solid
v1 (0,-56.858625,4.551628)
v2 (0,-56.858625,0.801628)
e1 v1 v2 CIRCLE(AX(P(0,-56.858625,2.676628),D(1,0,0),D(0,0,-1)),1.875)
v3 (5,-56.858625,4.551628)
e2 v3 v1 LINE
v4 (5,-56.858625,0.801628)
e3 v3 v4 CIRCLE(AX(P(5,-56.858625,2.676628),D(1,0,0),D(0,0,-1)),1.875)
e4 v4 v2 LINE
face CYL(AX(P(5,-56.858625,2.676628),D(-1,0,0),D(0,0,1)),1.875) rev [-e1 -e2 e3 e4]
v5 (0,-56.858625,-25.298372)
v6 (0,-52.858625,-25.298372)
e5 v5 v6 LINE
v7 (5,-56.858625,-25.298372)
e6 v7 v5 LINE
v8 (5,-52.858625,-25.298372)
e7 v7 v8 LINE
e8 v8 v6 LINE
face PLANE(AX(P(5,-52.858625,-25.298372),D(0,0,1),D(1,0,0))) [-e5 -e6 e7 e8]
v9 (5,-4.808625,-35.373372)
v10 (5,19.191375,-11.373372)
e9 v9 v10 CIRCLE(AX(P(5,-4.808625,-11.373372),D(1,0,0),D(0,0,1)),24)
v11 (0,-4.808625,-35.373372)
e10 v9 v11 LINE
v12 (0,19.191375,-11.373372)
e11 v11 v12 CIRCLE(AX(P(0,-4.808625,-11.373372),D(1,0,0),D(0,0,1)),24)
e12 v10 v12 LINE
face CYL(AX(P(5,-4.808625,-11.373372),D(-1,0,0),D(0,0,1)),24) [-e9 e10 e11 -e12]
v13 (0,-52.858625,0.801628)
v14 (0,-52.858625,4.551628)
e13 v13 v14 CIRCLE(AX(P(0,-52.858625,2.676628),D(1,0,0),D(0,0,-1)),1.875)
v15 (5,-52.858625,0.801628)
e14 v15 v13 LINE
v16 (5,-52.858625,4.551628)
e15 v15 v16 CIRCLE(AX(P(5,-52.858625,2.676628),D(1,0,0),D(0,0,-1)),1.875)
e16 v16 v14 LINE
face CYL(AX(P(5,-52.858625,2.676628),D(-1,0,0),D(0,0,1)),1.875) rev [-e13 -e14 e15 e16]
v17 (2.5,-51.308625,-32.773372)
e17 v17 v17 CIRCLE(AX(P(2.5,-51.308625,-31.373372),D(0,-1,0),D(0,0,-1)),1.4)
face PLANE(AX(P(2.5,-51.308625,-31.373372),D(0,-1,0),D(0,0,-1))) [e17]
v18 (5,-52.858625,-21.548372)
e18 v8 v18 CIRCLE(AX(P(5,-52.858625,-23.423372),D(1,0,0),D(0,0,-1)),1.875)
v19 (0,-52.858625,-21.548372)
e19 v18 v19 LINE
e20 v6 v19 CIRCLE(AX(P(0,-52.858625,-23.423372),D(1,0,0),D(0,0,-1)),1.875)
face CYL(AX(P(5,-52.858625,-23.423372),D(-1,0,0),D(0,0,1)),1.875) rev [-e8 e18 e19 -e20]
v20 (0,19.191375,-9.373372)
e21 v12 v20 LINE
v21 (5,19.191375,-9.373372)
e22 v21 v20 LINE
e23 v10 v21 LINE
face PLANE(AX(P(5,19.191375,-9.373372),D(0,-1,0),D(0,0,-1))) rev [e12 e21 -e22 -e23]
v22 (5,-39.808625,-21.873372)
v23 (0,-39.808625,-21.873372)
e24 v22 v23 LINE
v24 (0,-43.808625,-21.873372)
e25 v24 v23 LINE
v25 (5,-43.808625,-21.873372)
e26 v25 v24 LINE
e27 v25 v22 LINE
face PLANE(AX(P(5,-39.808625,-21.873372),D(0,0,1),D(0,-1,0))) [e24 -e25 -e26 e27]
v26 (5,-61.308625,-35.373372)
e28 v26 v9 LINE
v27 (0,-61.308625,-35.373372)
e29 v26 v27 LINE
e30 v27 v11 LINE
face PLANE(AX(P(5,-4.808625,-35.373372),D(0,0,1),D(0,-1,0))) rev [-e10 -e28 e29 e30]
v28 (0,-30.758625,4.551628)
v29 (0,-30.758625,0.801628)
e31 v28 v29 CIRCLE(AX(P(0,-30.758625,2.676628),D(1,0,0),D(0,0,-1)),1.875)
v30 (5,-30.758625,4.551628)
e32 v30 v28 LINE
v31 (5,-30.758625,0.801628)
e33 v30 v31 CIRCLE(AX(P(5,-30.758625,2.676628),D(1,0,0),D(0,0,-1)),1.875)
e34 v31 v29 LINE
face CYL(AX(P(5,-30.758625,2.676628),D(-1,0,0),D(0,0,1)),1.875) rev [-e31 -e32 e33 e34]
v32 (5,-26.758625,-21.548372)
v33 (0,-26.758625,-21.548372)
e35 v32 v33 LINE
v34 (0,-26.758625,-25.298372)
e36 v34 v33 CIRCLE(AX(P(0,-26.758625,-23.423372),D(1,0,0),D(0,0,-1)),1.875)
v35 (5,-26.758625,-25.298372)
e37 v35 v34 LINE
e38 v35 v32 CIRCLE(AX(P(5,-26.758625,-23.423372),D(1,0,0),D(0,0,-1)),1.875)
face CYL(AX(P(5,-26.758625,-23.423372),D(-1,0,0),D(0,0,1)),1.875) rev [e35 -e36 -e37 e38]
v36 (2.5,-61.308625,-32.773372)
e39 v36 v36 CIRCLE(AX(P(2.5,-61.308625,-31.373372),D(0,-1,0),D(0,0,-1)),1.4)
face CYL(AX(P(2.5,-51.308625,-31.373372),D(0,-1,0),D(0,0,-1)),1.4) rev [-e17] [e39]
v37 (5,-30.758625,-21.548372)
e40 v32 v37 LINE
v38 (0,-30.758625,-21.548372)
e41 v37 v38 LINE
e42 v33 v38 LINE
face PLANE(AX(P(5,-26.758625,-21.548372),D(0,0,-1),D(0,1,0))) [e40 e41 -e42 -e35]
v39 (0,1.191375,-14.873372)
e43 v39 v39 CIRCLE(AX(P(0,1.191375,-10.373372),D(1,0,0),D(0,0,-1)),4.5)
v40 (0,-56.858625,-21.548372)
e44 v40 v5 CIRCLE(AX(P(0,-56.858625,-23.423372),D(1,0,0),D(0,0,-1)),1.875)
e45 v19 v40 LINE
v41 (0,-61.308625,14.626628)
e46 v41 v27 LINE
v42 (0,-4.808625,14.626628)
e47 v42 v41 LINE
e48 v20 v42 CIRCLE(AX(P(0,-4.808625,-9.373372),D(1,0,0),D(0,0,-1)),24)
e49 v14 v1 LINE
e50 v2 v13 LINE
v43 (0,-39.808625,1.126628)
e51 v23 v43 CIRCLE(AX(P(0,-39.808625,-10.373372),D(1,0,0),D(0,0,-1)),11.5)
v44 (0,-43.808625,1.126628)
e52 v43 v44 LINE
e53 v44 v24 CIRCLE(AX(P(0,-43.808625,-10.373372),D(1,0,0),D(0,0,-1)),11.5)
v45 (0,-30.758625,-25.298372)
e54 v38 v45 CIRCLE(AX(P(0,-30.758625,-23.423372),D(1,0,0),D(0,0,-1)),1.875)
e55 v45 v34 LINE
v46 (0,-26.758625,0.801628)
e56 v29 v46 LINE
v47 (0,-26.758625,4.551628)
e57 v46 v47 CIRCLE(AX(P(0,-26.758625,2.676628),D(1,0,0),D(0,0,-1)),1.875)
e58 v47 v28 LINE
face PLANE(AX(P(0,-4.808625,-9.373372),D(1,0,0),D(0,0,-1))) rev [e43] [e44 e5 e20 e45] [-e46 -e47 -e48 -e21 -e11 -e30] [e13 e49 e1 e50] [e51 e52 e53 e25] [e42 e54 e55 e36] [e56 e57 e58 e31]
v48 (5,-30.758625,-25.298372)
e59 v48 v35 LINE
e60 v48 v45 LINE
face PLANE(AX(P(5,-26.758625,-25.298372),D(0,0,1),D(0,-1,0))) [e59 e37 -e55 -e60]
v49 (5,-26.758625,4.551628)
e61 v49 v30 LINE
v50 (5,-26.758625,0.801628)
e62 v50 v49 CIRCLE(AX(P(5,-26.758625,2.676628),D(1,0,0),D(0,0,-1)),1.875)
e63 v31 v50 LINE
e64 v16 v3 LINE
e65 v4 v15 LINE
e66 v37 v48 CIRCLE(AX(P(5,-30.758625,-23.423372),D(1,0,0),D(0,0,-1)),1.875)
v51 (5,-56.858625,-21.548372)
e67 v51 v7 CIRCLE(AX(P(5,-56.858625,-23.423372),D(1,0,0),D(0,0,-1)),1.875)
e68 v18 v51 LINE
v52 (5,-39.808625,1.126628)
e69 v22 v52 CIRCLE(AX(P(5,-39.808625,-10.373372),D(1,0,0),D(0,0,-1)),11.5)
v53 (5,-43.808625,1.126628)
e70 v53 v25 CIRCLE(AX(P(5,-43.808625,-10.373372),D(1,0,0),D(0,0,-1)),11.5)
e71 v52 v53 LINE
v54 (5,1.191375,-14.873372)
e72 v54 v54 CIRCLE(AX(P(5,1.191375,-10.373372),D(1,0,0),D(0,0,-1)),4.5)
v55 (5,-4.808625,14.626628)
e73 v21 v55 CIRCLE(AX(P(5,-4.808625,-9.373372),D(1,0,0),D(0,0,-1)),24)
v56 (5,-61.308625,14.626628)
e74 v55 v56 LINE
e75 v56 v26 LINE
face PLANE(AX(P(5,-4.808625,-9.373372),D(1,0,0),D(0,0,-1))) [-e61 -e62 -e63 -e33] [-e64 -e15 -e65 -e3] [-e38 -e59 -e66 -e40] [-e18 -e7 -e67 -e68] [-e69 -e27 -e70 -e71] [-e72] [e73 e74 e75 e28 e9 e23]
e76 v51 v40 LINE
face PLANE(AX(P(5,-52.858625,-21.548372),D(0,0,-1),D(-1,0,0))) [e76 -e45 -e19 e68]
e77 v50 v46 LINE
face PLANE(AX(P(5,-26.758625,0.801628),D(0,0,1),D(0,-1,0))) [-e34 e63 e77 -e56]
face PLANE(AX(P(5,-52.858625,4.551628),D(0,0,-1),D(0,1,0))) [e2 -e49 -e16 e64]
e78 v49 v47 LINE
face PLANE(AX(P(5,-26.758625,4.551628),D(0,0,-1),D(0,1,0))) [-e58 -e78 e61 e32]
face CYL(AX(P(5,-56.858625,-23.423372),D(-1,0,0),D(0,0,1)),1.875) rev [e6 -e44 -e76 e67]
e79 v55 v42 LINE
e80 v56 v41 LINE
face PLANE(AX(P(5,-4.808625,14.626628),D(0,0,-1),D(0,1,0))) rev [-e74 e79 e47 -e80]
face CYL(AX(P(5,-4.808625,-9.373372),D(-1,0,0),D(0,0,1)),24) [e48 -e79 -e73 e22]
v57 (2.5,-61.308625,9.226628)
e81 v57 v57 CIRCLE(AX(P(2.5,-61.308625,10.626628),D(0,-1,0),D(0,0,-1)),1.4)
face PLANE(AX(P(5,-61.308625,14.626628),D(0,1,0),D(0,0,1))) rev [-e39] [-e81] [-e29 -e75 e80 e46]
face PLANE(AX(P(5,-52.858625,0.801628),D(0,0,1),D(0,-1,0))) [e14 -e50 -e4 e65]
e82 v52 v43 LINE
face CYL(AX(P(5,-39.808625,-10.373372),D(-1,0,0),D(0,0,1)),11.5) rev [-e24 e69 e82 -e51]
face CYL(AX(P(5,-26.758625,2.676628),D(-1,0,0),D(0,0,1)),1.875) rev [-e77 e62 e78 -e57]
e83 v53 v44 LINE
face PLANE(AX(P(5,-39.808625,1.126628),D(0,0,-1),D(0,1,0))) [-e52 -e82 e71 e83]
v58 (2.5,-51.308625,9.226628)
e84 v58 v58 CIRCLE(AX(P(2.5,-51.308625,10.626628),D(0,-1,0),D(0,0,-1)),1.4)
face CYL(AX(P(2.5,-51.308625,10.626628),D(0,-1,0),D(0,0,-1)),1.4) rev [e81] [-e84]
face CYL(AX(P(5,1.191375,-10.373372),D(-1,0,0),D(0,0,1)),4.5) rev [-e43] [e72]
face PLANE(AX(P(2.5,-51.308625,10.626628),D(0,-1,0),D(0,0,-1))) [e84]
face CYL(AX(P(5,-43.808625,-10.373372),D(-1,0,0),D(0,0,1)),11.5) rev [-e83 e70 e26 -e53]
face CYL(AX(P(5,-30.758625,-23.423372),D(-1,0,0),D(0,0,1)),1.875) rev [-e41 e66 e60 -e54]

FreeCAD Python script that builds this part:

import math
import FreeCAD as App
import Part
import Sketcher
from FreeCAD import Vector
Q = App.Units.Quantity

doc = App.newDocument("Part")
body = doc.addObject("PartDesign::Body", "Body")

sketch1 = body.newObject("Sketcher::SketchObject", "Sketch")
sketch1.AttachmentSupport = (doc.getObject("YZ_Plane"), [""])
sketch1.MapMode = "FlatFace"
sketch1.addGeometry(Part.LineSegment(Vector(19.191375, -11.373372, 0), Vector(19.191375, -9.373372, 0)), False)
sketch1.addGeometry(Part.ArcOfCircle(Part.Circle(Vector(-4.808625, -9.373372, 0), Vector(0, 0, 1), 24), math.radians(0), math.radians(90)), False)
sketch1.addGeometry(Part.LineSegment(Vector(-4.808625, 14.626628, 0), Vector(-61.308625, 14.626628, 0)), False)
sketch1.addGeometry(Part.LineSegment(Vector(-61.308625, 14.626628, 0), Vector(-61.308625, -35.373372, 0)), False)
sketch1.addGeometry(Part.LineSegment(Vector(-61.308625, -35.373372, 0), Vector(-4.808625, -35.373372, 0)), False)
sketch1.addGeometry(Part.ArcOfCircle(Part.Circle(Vector(-4.808625, -11.373372, 0), Vector(0, 0, 1), 24), math.radians(-90), math.radians(0)), False)
sketch1.addGeometry(Part.LineSegment(Vector(-52.858625, -25.298372, 0), Vector(-56.858625, -25.298372, 0)), False)
sketch1.addGeometry(Part.ArcOfCircle(Part.Circle(Vector(-56.858625, -23.423372, 0), Vector(0, 0, 1), 1.875), math.radians(90), math.radians(270)), False)
sketch1.addGeometry(Part.LineSegment(Vector(-56.858625, -21.548372, 0), Vector(-52.858625, -21.548372, 0)), False)
sketch1.addGeometry(Part.ArcOfCircle(Part.Circle(Vector(-52.858625, -23.423372, 0), Vector(0, 0, 1), 1.875), math.radians(-90), math.radians(90)), False)
sketch1.addGeometry(Part.ArcOfCircle(Part.Circle(Vector(-26.758625, -23.423372, 0), Vector(0, 0, 1), 1.875), math.radians(-90), math.radians(90)), False)
sketch1.addGeometry(Part.LineSegment(Vector(-26.758625, -25.298372, 0), Vector(-30.758625, -25.298372, 0)), False)
sketch1.addGeometry(Part.ArcOfCircle(Part.Circle(Vector(-30.758625, -23.423372, 0), Vector(0, 0, 1), 1.875), math.radians(90), math.radians(270)), False)
sketch1.addGeometry(Part.LineSegment(Vector(-30.758625, -21.548372, 0), Vector(-26.758625, -21.548372, 0)), False)
sketch1.addGeometry(Part.ArcOfCircle(Part.Circle(Vector(-52.858625, 2.676628, 0), Vector(0, 0, 1), 1.875), math.radians(-90), math.radians(90)), False)
sketch1.addGeometry(Part.LineSegment(Vector(-52.858625, 0.801628, 0), Vector(-56.858625, 0.801628, 0)), False)
sketch1.addGeometry(Part.ArcOfCircle(Part.Circle(Vector(-56.858625, 2.676628, 0), Vector(0, 0, 1), 1.875), math.radians(90), math.radians(270)), False)
sketch1.addGeometry(Part.LineSegment(Vector(-56.858625, 4.551628, 0), Vector(-52.858625, 4.551628, 0)), False)
sketch1.addGeometry(Part.ArcOfCircle(Part.Circle(Vector(-39.808625, -10.373372, 0), Vector(0, 0, 1), 11.5), math.radians(-90), math.radians(90)), False)
sketch1.addGeometry(Part.LineSegment(Vector(-39.808625, -21.873372, 0), Vector(-43.808625, -21.873372, 0)), False)
sketch1.addGeometry(Part.ArcOfCircle(Part.Circle(Vector(-43.808625, -10.373372, 0), Vector(0, 0, 1), 11.5), math.radians(90), math.radians(270)), False)
sketch1.addGeometry(Part.LineSegment(Vector(-43.808625, 1.126628, 0), Vector(-39.808625, 1.126628, 0)), False)
sketch1.addGeometry(Part.ArcOfCircle(Part.Circle(Vector(-26.758625, 2.676628, 0), Vector(0, 0, 1), 1.875), math.radians(-90), math.radians(90)), False)
sketch1.addGeometry(Part.LineSegment(Vector(-26.758625, 0.801628, 0), Vector(-30.758625, 0.801628, 0)), False)
sketch1.addGeometry(Part.ArcOfCircle(Part.Circle(Vector(-30.758625, 2.676628, 0), Vector(0, 0, 1), 1.875), math.radians(90), math.radians(270)), False)
sketch1.addGeometry(Part.LineSegment(Vector(-30.758625, 4.551628, 0), Vector(-26.758625, 4.551628, 0)), False)
sketch1.addGeometry(Part.Circle(Vector(1.191375, -10.373372, 0), Vector(0, 0, 1), 4.5), False)
sketch1.addConstraint(Sketcher.Constraint("Tangent", 0, 2, 1, 1))
sketch1.addConstraint(Sketcher.Constraint("Tangent", 1, 2, 2, 1))
sketch1.addConstraint(Sketcher.Constraint("Coincident", 2, 2, 3, 1))
sketch1.addConstraint(Sketcher.Constraint("Coincident", 3, 2, 4, 1))
sketch1.addConstraint(Sketcher.Constraint("Tangent", 4, 2, 5, 1))
sketch1.addConstraint(Sketcher.Constraint("Tangent", 5, 2, 0, 1))
sketch1.addConstraint(Sketcher.Constraint("Tangent", 6, 2, 7, 2))
sketch1.addConstraint(Sketcher.Constraint("Tangent", 7, 1, 8, 1))
sketch1.addConstraint(Sketcher.Constraint("Tangent", 8, 2, 9, 2))
sketch1.addConstraint(Sketcher.Constraint("Tangent", 9, 1, 6, 1))
sketch1.addConstraint(Sketcher.Constraint("Tangent", 10, 1, 11, 1))
sketch1.addConstraint(Sketcher.Constraint("Tangent", 11, 2, 12, 2))
sketch1.addConstraint(Sketcher.Constraint("Tangent", 12, 1, 13, 1))
sketch1.addConstraint(Sketcher.Constraint("Tangent", 13, 2, 10, 2))
sketch1.addConstraint(Sketcher.Constraint("Tangent", 14, 1, 15, 1))
sketch1.addConstraint(Sketcher.Constraint("Tangent", 15, 2, 16, 2))
sketch1.addConstraint(Sketcher.Constraint("Tangent", 16, 1, 17, 1))
sketch1.addConstraint(Sketcher.Constraint("Tangent", 17, 2, 14, 2))
sketch1.addConstraint(Sketcher.Constraint("Tangent", 18, 1, 19, 1))
sketch1.addConstraint(Sketcher.Constraint("Tangent", 19, 2, 20, 2))
sketch1.addConstraint(Sketcher.Constraint("Tangent", 20, 1, 21, 1))
sketch1.addConstraint(Sketcher.Constraint("Tangent", 21, 2, 18, 2))
sketch1.addConstraint(Sketcher.Constraint("Tangent", 22, 1, 23, 1))
sketch1.addConstraint(Sketcher.Constraint("Tangent", 23, 2, 24, 2))
sketch1.addConstraint(Sketcher.Constraint("Tangent", 24, 1, 25, 1))
sketch1.addConstraint(Sketcher.Constraint("Tangent", 25, 2, 22, 2))
sketch1.addConstraint(Sketcher.Constraint("Vertical", 0))
sketch1.addConstraint(Sketcher.Constraint("Horizontal", 2))
sketch1.addConstraint(Sketcher.Constraint("Vertical", 3))
sketch1.addConstraint(Sketcher.Constraint("Horizontal", 4))
sketch1.addConstraint(Sketcher.Constraint("Horizontal", 6))
sketch1.addConstraint(Sketcher.Constraint("Horizontal", 8))
sketch1.addConstraint(Sketcher.Constraint("Horizontal", 11))
sketch1.addConstraint(Sketcher.Constraint("Horizontal", 13))
sketch1.addConstraint(Sketcher.Constraint("Horizontal", 15))
sketch1.addConstraint(Sketcher.Constraint("Horizontal", 17))
sketch1.addConstraint(Sketcher.Constraint("Horizontal", 19))
sketch1.addConstraint(Sketcher.Constraint("Horizontal", 21))
sketch1.addConstraint(Sketcher.Constraint("Horizontal", 23))
sketch1.addConstraint(Sketcher.Constraint("Horizontal", 25))
sketch1.addConstraint(Sketcher.Constraint("Equal", 1, 5))
sketch1.addConstraint(Sketcher.Constraint("Equal", 9, 10))
sketch1.addConstraint(Sketcher.Constraint("Equal", 12, 14))
sketch1.addConstraint(Sketcher.Constraint("Equal", 16, 22))
sketch1.addConstraint(Sketcher.Constraint("Horizontal", 9, 3, 10, 3))
sketch1.addConstraint(Sketcher.Constraint("Horizontal", 16, 3, 22, 3))
sketch1.addConstraint(Sketcher.Constraint("Horizontal", 20, 3, 26, 3))
sketch1.addConstraint(Sketcher.Constraint("Vertical", 9, 3, 14, 3))
sketch1.addConstraint(Sketcher.Constraint("Vertical", 7, 3, 16, 3))
sketch1.addConstraint(Sketcher.Constraint("Vertical", 10, 3, 22, 3))
sketch1.addConstraint(Sketcher.Constraint("Vertical", 12, 3, 24, 3))
sketch1.addConstraint(Sketcher.Constraint("Equal", 8, 11))
sketch1.addConstraint(Sketcher.Constraint("Equal", 17, 19))
sketch1.addConstraint(Sketcher.Constraint("Diameter", 26, Q("9 mm")))
sketch1.addConstraint(Sketcher.Constraint("Radius", 1, Q("24 mm")))
sketch1.addConstraint(Sketcher.Constraint("Radius", 18, Q("11.5 mm")))
sketch1.addConstraint(Sketcher.Constraint("DistanceX", 6, 2, 6, 1, Q("4 mm")))
sketch1.addConstraint(Sketcher.Constraint("DistanceY", 0, 1, 0, 2, Q("2 mm")))
sketch1.addConstraint(Sketcher.Constraint("DistanceX", 2, 2, 2, 1, Q("56.5 mm")))
sketch1.addConstraint(Sketcher.Constraint("Radius", 7, Q("1.875 mm")))
sketch1.addConstraint(Sketcher.Constraint("DistanceX", 5, 3, 26, 3, Q("6 mm")))
sketch1.addConstraint(Sketcher.Constraint("DistanceY", 5, 3, 26, 3, Q("1 mm")))
sketch1.addConstraint(Sketcher.Constraint("DistanceX", 9, 3, 10, 3, Q("26.1 mm")))
sketch1.addConstraint(Sketcher.Constraint("DistanceY", 9, 3, 14, 3, Q("26.1 mm")))
sketch1.addConstraint(Sketcher.Constraint("DistanceX", 2, 2, 20, 3, Q("17.5 mm")))
sketch1.addConstraint(Sketcher.Constraint("DistanceX", 7, 3, 5, 3, Q("52.05 mm")))
sketch1.addConstraint(Sketcher.Constraint("DistanceY", 7, 3, 5, 3, Q("12.05 mm")))
sketch1.addConstraint(Sketcher.Constraint("DistanceY", 1, 3, -1, 1, Q("9.373372 mm")))
sketch1.addConstraint(Sketcher.Constraint("DistanceX", 1, 3, -1, 1, Q("4.808625 mm")))
pad1 = body.newObject("PartDesign::Pad", "Pad")
pad1.Profile = sketch1
pad1.Length = 5

sketch2 = body.newObject("Sketcher::SketchObject", "Sketch001")
sketch2.AttachmentSupport = (doc.getObject("XZ_Plane"), [""])
sketch2.MapMode = "FlatFace"
sketch2.AttachmentOffset = App.Placement(Vector(0, 0, 61.308625), App.Rotation())
sketch2.addGeometry(Part.Circle(Vector(2.5, 10.626628, 0), Vector(0, 0, 1), 1.4), False)
sketch2.addGeometry(Part.Circle(Vector(2.5, -31.373372, 0), Vector(0, 0, 1), 1.4), False)
sketch2.addConstraint(Sketcher.Constraint("Equal", 0, 1))
sketch2.addConstraint(Sketcher.Constraint("Vertical", 0, 3, 1, 3))
sketch2.addConstraint(Sketcher.Constraint("Diameter", 0, Q("2.8 mm")))
sketch2.addConstraint(Sketcher.Constraint("DistanceY", 1, 3, 0, 3, Q("42 mm")))
sketch2.addConstraint(Sketcher.Constraint("DistanceX", -1, 1, 0, 3, Q("2.5 mm")))
sketch2.addConstraint(Sketcher.Constraint("DistanceY", -1, 1, 0, 3, Q("10.626628 mm")))
pocket1 = body.newObject("PartDesign::Pocket", "Pocket")
pocket1.Profile = sketch2
pocket1.Length = 10

doc.recompute()
